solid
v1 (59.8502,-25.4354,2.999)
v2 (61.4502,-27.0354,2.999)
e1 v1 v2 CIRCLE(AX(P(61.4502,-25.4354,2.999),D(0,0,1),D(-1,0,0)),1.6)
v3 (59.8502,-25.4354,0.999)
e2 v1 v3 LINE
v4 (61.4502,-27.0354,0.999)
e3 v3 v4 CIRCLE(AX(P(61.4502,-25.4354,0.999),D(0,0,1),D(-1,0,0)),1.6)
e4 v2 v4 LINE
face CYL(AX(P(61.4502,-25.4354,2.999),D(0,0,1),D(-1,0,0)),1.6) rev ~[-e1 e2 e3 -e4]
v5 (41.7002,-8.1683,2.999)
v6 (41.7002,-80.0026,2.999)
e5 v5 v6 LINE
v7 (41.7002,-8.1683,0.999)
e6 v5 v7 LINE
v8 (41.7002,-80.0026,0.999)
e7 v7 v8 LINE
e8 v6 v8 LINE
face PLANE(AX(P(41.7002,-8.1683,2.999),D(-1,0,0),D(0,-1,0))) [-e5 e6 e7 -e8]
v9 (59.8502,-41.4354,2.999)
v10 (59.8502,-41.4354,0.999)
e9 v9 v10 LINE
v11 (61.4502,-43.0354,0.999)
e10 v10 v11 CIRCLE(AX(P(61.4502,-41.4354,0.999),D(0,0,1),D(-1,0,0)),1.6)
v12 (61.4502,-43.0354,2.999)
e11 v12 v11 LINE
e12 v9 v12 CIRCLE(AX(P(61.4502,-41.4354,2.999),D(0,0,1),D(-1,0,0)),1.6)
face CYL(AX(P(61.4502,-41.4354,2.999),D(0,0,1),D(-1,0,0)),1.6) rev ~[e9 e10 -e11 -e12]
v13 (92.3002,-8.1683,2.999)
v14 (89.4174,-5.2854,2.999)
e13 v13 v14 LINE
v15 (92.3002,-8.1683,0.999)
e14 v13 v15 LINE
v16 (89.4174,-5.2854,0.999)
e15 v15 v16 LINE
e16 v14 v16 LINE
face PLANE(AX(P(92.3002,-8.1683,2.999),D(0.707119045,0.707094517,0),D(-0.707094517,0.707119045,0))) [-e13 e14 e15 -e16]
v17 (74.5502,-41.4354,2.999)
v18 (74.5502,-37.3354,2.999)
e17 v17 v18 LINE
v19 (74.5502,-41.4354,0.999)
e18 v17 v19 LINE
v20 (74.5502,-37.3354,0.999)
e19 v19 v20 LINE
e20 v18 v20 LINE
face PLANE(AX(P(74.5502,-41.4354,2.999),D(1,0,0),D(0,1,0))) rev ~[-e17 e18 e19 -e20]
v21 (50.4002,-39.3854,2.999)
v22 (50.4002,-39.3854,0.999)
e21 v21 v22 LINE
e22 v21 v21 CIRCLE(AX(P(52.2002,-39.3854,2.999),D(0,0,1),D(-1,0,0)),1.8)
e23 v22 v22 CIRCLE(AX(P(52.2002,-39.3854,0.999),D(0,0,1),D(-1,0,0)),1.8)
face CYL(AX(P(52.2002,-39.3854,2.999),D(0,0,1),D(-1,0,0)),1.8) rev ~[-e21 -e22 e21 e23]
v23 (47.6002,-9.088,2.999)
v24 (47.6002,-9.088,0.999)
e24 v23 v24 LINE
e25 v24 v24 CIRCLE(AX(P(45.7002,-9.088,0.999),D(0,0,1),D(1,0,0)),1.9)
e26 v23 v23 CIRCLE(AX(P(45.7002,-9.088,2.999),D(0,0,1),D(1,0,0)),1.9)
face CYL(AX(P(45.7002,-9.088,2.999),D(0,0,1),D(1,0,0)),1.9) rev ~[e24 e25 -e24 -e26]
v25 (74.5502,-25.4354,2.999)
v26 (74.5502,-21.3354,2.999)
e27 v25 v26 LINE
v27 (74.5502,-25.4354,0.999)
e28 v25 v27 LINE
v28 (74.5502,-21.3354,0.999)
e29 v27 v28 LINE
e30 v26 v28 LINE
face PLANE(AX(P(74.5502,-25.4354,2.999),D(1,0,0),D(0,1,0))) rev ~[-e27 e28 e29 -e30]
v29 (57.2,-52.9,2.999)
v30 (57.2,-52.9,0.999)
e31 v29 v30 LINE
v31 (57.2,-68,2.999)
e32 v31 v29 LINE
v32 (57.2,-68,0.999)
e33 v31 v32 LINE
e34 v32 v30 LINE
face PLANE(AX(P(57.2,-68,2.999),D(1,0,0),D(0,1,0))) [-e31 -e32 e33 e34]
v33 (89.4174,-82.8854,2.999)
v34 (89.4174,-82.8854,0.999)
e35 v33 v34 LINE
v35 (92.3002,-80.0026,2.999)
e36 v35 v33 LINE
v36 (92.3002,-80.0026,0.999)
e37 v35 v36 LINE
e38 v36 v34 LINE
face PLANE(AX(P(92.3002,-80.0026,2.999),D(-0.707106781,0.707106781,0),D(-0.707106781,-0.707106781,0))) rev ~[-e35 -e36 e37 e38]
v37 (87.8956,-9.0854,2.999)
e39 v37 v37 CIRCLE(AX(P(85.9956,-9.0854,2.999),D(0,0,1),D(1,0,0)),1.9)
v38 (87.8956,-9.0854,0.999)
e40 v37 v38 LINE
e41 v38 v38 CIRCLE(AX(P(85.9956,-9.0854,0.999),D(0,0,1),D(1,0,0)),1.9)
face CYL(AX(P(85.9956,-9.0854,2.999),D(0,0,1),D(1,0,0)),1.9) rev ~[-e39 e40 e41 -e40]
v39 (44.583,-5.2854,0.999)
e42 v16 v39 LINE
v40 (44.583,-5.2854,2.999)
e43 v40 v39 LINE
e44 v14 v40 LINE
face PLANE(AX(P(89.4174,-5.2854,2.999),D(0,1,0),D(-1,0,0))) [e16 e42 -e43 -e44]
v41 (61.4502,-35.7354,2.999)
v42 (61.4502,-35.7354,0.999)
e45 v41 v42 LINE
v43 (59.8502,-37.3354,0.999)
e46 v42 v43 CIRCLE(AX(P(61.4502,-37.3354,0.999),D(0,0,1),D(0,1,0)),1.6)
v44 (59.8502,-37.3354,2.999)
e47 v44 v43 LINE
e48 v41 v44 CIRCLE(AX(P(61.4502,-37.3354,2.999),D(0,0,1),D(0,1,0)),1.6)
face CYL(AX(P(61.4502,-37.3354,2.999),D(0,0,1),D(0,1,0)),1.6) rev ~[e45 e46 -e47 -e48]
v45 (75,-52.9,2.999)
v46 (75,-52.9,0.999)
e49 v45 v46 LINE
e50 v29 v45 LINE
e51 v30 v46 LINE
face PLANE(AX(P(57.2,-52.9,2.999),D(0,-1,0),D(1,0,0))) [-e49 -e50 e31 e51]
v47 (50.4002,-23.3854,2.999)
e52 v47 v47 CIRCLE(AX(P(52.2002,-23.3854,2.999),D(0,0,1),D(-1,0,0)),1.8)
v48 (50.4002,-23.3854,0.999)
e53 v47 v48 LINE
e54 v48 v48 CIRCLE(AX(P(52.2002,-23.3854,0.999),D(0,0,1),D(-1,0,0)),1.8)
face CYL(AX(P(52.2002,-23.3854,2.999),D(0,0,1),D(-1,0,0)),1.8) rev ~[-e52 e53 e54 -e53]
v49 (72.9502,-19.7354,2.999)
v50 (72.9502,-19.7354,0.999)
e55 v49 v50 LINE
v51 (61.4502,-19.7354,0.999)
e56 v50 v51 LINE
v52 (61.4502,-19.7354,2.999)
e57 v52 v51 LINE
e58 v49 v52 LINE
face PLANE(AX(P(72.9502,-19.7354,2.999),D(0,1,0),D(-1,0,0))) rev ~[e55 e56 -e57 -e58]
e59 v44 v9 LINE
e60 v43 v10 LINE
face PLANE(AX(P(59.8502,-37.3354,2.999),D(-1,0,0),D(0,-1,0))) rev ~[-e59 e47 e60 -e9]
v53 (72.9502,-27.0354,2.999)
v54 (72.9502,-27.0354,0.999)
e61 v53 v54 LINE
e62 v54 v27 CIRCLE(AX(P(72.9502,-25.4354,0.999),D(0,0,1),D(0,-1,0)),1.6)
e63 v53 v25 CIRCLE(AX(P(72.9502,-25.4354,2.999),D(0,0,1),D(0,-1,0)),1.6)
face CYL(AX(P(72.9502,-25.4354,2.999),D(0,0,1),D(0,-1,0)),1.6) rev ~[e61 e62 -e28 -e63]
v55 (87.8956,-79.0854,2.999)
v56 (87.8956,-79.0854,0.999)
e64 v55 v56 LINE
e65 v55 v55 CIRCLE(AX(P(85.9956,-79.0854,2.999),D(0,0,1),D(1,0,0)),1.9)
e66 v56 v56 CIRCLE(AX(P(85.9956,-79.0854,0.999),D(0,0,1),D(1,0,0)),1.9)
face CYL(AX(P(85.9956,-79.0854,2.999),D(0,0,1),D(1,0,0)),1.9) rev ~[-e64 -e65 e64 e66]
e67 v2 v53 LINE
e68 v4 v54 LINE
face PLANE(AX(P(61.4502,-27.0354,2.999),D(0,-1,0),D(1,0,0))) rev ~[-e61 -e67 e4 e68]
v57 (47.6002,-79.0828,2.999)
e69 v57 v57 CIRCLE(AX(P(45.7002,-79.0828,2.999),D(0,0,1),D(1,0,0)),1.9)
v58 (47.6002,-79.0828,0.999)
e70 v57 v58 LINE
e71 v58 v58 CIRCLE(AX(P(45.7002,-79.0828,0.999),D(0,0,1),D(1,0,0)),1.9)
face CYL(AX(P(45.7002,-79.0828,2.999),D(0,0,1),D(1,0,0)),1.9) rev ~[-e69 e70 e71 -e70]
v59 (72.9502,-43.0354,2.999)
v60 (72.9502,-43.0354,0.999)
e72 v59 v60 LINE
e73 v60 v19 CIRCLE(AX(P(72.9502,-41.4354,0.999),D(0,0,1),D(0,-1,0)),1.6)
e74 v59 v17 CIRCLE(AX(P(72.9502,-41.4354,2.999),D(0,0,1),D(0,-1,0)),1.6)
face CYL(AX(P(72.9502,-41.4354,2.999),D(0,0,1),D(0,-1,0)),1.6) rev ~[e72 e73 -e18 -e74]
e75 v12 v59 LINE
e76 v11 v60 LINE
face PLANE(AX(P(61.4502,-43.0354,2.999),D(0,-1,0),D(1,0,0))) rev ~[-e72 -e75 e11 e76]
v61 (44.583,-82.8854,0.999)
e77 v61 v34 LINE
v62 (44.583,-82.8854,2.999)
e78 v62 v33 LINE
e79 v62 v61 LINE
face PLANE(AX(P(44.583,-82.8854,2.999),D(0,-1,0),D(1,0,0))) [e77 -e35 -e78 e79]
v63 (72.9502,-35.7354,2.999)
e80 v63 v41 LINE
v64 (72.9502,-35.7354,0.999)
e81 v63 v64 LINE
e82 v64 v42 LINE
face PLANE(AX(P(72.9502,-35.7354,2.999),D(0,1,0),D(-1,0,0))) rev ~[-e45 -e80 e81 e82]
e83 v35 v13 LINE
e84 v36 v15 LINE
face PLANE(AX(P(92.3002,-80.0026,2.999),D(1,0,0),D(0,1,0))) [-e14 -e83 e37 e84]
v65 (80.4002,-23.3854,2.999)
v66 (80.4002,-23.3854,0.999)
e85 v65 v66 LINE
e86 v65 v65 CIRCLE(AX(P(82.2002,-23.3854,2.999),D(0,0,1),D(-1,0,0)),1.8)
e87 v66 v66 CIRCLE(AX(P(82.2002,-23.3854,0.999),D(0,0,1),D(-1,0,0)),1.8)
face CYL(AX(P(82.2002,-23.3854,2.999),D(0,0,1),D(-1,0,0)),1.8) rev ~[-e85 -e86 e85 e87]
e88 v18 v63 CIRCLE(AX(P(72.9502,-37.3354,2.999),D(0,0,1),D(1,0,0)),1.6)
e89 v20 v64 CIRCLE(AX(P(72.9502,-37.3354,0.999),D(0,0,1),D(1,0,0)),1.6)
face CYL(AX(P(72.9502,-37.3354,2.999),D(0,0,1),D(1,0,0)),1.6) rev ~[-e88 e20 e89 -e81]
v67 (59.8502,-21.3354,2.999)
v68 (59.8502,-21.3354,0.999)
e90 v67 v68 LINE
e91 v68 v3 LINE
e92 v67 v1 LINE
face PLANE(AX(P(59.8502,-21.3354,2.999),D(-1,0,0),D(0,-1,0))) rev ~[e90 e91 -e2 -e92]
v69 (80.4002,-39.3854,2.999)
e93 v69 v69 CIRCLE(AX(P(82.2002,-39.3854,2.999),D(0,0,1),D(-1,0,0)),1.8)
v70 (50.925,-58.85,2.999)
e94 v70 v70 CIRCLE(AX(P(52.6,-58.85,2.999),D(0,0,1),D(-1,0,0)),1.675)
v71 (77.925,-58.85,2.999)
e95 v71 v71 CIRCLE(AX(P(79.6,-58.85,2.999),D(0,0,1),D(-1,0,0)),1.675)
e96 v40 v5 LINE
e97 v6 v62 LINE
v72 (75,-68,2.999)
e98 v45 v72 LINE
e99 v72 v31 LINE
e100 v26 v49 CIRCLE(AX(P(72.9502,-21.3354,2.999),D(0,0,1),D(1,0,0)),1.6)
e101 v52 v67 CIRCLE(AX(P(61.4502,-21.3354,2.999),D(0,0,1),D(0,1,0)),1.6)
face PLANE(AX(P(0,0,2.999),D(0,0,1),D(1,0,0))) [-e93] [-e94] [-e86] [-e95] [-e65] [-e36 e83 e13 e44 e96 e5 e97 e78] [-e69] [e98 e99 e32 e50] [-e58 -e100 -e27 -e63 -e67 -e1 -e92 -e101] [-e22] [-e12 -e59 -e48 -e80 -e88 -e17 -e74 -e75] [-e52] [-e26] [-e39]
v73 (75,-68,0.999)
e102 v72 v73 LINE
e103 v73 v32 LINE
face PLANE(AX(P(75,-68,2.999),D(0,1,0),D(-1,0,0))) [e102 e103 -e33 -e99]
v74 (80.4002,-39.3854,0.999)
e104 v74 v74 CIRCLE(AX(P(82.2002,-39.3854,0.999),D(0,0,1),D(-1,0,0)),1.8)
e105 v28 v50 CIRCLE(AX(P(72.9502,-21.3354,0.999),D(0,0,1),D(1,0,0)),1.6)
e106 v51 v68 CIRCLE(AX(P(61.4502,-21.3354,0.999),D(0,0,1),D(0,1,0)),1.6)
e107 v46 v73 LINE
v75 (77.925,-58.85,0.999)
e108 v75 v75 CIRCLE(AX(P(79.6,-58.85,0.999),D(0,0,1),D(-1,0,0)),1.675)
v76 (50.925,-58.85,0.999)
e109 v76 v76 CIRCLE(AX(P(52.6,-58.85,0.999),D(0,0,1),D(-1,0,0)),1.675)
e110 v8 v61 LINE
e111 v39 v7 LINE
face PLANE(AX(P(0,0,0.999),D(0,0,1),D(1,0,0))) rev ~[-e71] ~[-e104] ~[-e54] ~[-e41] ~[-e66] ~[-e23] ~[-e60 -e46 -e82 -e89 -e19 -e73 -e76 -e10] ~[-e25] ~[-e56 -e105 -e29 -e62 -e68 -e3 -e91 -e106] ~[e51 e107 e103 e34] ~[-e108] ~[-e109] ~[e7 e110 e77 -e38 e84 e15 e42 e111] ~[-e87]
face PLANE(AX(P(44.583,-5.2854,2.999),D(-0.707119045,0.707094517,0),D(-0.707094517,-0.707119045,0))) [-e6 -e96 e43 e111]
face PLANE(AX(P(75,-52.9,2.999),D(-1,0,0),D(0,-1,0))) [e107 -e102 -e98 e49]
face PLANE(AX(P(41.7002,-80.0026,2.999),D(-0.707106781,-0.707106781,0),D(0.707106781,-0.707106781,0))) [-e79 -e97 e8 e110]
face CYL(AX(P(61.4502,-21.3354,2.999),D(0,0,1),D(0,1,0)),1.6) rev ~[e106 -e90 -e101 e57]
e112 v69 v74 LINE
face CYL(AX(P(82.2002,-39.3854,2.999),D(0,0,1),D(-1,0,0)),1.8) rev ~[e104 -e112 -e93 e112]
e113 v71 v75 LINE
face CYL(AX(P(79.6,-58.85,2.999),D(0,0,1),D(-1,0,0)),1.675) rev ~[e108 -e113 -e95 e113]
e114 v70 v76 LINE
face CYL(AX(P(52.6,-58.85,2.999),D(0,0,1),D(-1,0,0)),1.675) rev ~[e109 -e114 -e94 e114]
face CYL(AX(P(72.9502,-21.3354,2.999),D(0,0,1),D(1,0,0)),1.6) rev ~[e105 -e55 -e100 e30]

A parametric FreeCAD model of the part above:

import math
import FreeCAD as App
import Part
import Sketcher

V = App.Vector

doc = App.newDocument("Part")
body = doc.addObject("PartDesign::Body", "Body")

sketch1 = body.newObject("Sketcher::SketchObject", "Sketch")
sketch1.AttachmentSupport = (doc.getObject("XY_Plane"), [""])
sketch1.MapMode = "FlatFace"
sketch1.AttachmentOffset = App.Placement(V(0, 0, 2.999), App.Rotation())
sketch1.addGeometry([
    Part.LineSegment(V(41.7, -80, 0), V(44.6, -82.9, 0)),
    Part.LineSegment(V(44.6, -82.9, 0), V(89.4, -82.9, 0)),
    Part.LineSegment(V(89.4, -82.9, 0), V(92.3, -80, 0)),
    Part.LineSegment(V(92.3, -80, 0), V(92.3, -8.2, 0)),
    Part.LineSegment(V(92.3, -8.2, 0), V(89.4, -5.3, 0)),
    Part.LineSegment(V(89.4, -5.3, 0), V(44.6, -5.3, 0)),
    Part.LineSegment(V(44.6, -5.3, 0), V(41.7, -8.2, 0)),
    Part.LineSegment(V(41.7, -8.2, 0), V(41.7, -80, 0)),
    Part.Circle(V(45.7, -79.1, 0), V(0, 0, 1), 1.9),
    Part.Circle(V(86, -79.1, 0), V(0, 0, 1), 1.9),
    Part.Circle(V(45.7, -9.1, 0), V(0, 0, 1), 1.9),
    Part.Circle(V(86, -9.1, 0), V(0, 0, 1), 1.9),
], False)
sketch1.addConstraint([
    Sketcher.Constraint("Coincident", 0, 2, 1, 1),
    Sketcher.Constraint("Coincident", 1, 2, 2, 1),
    Sketcher.Constraint("Coincident", 2, 2, 3, 1),
    Sketcher.Constraint("Coincident", 3, 2, 4, 1),
    Sketcher.Constraint("Coincident", 4, 2, 5, 1),
    Sketcher.Constraint("Coincident", 5, 2, 6, 1),
    Sketcher.Constraint("Coincident", 6, 2, 7, 1),
    Sketcher.Constraint("Coincident", 7, 2, 0, 1),
    Sketcher.Constraint("Horizontal", 1),
    Sketcher.Constraint("Vertical", 3),
    Sketcher.Constraint("Horizontal", 5),
    Sketcher.Constraint("Vertical", 7),
    Sketcher.Constraint("Equal", 8, 9),
    Sketcher.Constraint("Equal", 9, 10),
    Sketcher.Constraint("Equal", 10, 11),
    Sketcher.Constraint("Perpendicular", 0, 2),
    Sketcher.Constraint("Perpendicular", 2, 4),
    Sketcher.Constraint("Perpendicular", 4, 6),
    Sketcher.Constraint("Horizontal", 3, 2, 6, 2),
    Sketcher.Constraint("Horizontal", 2, 2, 7, 2),
    Sketcher.Constraint("Vertical", 8, 3, 10, 3),
    Sketcher.Constraint("Vertical", 9, 3, 11, 3),
    Sketcher.Constraint("Vertical", 1, 2, 4, 2),
    Sketcher.Constraint("Vertical", 0, 2, 5, 2),
    Sketcher.Constraint("Diameter", 8, 3.8),
    Sketcher.Constraint("DistanceX", 6, 2, 10, 3, 4.0),
    Sketcher.Constraint("DistanceY", 0, 2, 9, 3, 3.8),
    Sketcher.Constraint("DistanceY", 11, 3, 4, 2, 3.8),
    Sketcher.Constraint("DistanceY", 9, 3, 11, 3, 70.0),
    Sketcher.Constraint("DistanceX", 8, 3, 9, 3, 40.2954),
    Sketcher.Constraint("DistanceX", 8, 3, 2, 2, 46.6),
    Sketcher.Constraint("Distance", 0, 4.077),
    Sketcher.Constraint("DistanceY", 10, 3, -1, 1, 9.088),
    Sketcher.Constraint("DistanceX", -1, 1, 0, 2, 44.583),
    Sketcher.Constraint("DistanceY", 8, 3, -1, 1, 79.0828),
    Sketcher.Constraint("DistanceY", 9, 3, -1, 1, 79.0854),
])
pad1 = body.newObject("PartDesign::Pad", "Pad")
pad1.Profile = sketch1
pad1.Length = 2
pad1.Reversed = True

sketch2 = body.newObject("Sketcher::SketchObject", "Sketch001")
sketch2.AttachmentSupport = (doc.getObject("XY_Plane"), [""])
sketch2.MapMode = "FlatFace"
sketch2.AttachmentOffset = App.Placement(V(0, 0, 2.999), App.Rotation())
sketch2.addGeometry([
    Part.LineSegment(V(74.6, -25.4, 0), V(74.6, -21.3, 0)),
    Part.ArcOfCircle(Part.Circle(V(73, -21.3, 0), V(0, 0, 1), 1.6), math.radians(0), math.radians(90)),
    Part.LineSegment(V(73, -19.7, 0), V(61.5, -19.7, 0)),
    Part.ArcOfCircle(Part.Circle(V(61.5, -21.3, 0), V(0, 0, 1), 1.6), math.radians(90), math.radians(180)),
    Part.LineSegment(V(59.9, -21.3, 0), V(59.9, -25.4, 0)),
    Part.ArcOfCircle(Part.Circle(V(61.5, -25.4, 0), V(0, 0, 1), 1.6), math.radians(180), math.radians(270)),
    Part.LineSegment(V(61.5, -27, 0), V(73, -27, 0)),
    Part.ArcOfCircle(Part.Circle(V(73, -25.4, 0), V(0, 0, 1), 1.6), math.radians(-90), math.radians(0)),
    Part.Circle(V(52.2, -23.4, 0), V(0, 0, 1), 1.8),
    Part.Circle(V(82.2, -23.4, 0), V(0, 0, 1), 1.8),
    Part.ArcOfCircle(Part.Circle(V(61.5, -37.3, 0), V(0, 0, 1), 1.6), math.radians(90), math.radians(180)),
    Part.LineSegment(V(59.9, -37.3, 0), V(59.9, -41.4, 0)),
    Part.ArcOfCircle(Part.Circle(V(61.5, -41.4, 0), V(0, 0, 1), 1.6), math.radians(180), math.radians(270)),
    Part.LineSegment(V(61.5, -43, 0), V(73, -43, 0)),
    Part.ArcOfCircle(Part.Circle(V(73, -41.4, 0), V(0, 0, 1), 1.6), math.radians(-90), math.radians(0)),
    Part.LineSegment(V(74.6, -41.4, 0), V(74.6, -37.3, 0)),
    Part.ArcOfCircle(Part.Circle(V(73, -37.3, 0), V(0, 0, 1), 1.6), math.radians(0), math.radians(90)),
    Part.LineSegment(V(73, -35.7, 0), V(61.5, -35.7, 0)),
    Part.Circle(V(52.2, -39.4, 0), V(0, 0, 1), 1.8),
    Part.Circle(V(82.2, -39.4, 0), V(0, 0, 1), 1.8),
    Part.LineSegment(V(75, -68, 0), V(75, -52.9, 0)),
    Part.LineSegment(V(75, -52.9, 0), V(57.2, -52.9, 0)),
    Part.LineSegment(V(57.2, -52.9, 0), V(57.2, -68, 0)),
    Part.LineSegment(V(57.2, -68, 0), V(75, -68, 0)),
    Part.Circle(V(52.6, -58.9, 0), V(0, 0, 1), 1.7),
    Part.Circle(V(79.6, -58.9, 0), V(0, 0, 1), 1.7),
], False)
sketch2.addConstraint([
    Sketcher.Constraint("Tangent", 0, 2, 1, 1),
    Sketcher.Constraint("Tangent", 1, 2, 2, 1),
    Sketcher.Constraint("Tangent", 2, 2, 3, 1),
    Sketcher.Constraint("Tangent", 3, 2, 4, 1),
    Sketcher.Constraint("Tangent", 4, 2, 5, 1),
    Sketcher.Constraint("Tangent", 5, 2, 6, 1),
    Sketcher.Constraint("Tangent", 6, 2, 7, 1),
    Sketcher.Constraint("Tangent", 7, 2, 0, 1),
    Sketcher.Constraint("Tangent", 10, 2, 11, 1),
    Sketcher.Constraint("Tangent", 11, 2, 12, 1),
    Sketcher.Constraint("Tangent", 12, 2, 13, 1),
    Sketcher.Constraint("Tangent", 13, 2, 14, 1),
    Sketcher.Constraint("Tangent", 14, 2, 15, 1),
    Sketcher.Constraint("Tangent", 15, 2, 16, 1),
    Sketcher.Constraint("Tangent", 16, 2, 17, 1),
    Sketcher.Constraint("Tangent", 17, 2, 10, 1),
    Sketcher.Constraint("Coincident", 20, 2, 21, 1),
    Sketcher.Constraint("Coincident", 21, 2, 22, 1),
    Sketcher.Constraint("Coincident", 22, 2, 23, 1),
    Sketcher.Constraint("Coincident", 23, 2, 20, 1),
    Sketcher.Constraint("Vertical", 0),
    Sketcher.Constraint("Horizontal", 2),
    Sketcher.Constraint("Vertical", 4),
    Sketcher.Constraint("Horizontal", 6),
    Sketcher.Constraint("Vertical", 11),
    Sketcher.Constraint("Horizontal", 13),
    Sketcher.Constraint("Vertical", 15),
    Sketcher.Constraint("Horizontal", 17),
    Sketcher.Constraint("Vertical", 20),
    Sketcher.Constraint("Horizontal", 21),
    Sketcher.Constraint("Vertical", 22),
    Sketcher.Constraint("Horizontal", 23),
    Sketcher.Constraint("Equal", 1, 3),
    Sketcher.Constraint("Equal", 3, 5),
    Sketcher.Constraint("Equal", 5, 7),
    Sketcher.Constraint("Equal", 8, 9),
    Sketcher.Constraint("Equal", 7, 10),
    Sketcher.Constraint("Equal", 10, 12),
    Sketcher.Constraint("Equal", 12, 14),
    Sketcher.Constraint("Equal", 14, 16),
    Sketcher.Constraint("Equal", 9, 18),
    Sketcher.Constraint("Equal", 18, 19),
    Sketcher.Constraint("Equal", 24, 25),
    Sketcher.Constraint("Horizontal", 8, 3, 9, 3),
    Sketcher.Constraint("Horizontal", 18, 3, 19, 3),
    Sketcher.Constraint("Horizontal", 24, 3, 25, 3),
    Sketcher.Constraint("Vertical", 5, 3, 10, 3),
    Sketcher.Constraint("Vertical", 7, 3, 14, 3),
    Sketcher.Constraint("Vertical", 8, 3, 18, 3),
    Sketcher.Constraint("Vertical", 9, 3, 19, 3),
    Sketcher.Constraint("Equal", 4, 11),
    Sketcher.Constraint("Diameter", 8, 3.6),
    Sketcher.Constraint("Radius", 1, 1.6),
    Sketcher.Constraint("Diameter", 24, 3.35),
    Sketcher.Constraint("DistanceX", 21, 2, 21, 1, 17.8),
    Sketcher.Constraint("DistanceY", 20, 1, 20, 2, 15.1),
    Sketcher.Constraint("DistanceX", 24, 3, 25, 3, 27.0),
    Sketcher.Constraint("DistanceY", 5, 2, 2, 2, 7.3),
    Sketcher.Constraint("DistanceX", 2, 2, 2, 1, 11.5),
    Sketcher.Constraint("DistanceX", -1, 1, 20, 2, 75.0),
    Sketcher.Constraint("DistanceY", 22, 2, -1, 1, 68.0),
    Sketcher.Constraint("DistanceX", 8, 3, 9, 3, 30.0),
    Sketcher.Constraint("DistanceY", 10, 3, 3, 3, 16.0),
    Sketcher.Constraint("DistanceY", 18, 3, 8, 3, 16.0),
    Sketcher.Constraint("DistanceX", -1, 1, 24, 3, 52.6),
    Sketcher.Constraint("DistanceY", 24, 3, -1, 1, 58.85),
    Sketcher.Constraint("DistanceX", 8, 3, 3, 3, 9.25),
    Sketcher.Constraint("DistanceY", 8, 3, 3, 3, 2.05),
    Sketcher.Constraint("DistanceX", -1, 1, 1, 3, 72.9502),
    Sketcher.Constraint("DistanceY", 1, 3, -1, 1, 21.3354),
])
pocket1 = body.newObject("PartDesign::Pocket", "Pocket")
pocket1.Profile = sketch2
pocket1.Length = 2

doc.recompute()
